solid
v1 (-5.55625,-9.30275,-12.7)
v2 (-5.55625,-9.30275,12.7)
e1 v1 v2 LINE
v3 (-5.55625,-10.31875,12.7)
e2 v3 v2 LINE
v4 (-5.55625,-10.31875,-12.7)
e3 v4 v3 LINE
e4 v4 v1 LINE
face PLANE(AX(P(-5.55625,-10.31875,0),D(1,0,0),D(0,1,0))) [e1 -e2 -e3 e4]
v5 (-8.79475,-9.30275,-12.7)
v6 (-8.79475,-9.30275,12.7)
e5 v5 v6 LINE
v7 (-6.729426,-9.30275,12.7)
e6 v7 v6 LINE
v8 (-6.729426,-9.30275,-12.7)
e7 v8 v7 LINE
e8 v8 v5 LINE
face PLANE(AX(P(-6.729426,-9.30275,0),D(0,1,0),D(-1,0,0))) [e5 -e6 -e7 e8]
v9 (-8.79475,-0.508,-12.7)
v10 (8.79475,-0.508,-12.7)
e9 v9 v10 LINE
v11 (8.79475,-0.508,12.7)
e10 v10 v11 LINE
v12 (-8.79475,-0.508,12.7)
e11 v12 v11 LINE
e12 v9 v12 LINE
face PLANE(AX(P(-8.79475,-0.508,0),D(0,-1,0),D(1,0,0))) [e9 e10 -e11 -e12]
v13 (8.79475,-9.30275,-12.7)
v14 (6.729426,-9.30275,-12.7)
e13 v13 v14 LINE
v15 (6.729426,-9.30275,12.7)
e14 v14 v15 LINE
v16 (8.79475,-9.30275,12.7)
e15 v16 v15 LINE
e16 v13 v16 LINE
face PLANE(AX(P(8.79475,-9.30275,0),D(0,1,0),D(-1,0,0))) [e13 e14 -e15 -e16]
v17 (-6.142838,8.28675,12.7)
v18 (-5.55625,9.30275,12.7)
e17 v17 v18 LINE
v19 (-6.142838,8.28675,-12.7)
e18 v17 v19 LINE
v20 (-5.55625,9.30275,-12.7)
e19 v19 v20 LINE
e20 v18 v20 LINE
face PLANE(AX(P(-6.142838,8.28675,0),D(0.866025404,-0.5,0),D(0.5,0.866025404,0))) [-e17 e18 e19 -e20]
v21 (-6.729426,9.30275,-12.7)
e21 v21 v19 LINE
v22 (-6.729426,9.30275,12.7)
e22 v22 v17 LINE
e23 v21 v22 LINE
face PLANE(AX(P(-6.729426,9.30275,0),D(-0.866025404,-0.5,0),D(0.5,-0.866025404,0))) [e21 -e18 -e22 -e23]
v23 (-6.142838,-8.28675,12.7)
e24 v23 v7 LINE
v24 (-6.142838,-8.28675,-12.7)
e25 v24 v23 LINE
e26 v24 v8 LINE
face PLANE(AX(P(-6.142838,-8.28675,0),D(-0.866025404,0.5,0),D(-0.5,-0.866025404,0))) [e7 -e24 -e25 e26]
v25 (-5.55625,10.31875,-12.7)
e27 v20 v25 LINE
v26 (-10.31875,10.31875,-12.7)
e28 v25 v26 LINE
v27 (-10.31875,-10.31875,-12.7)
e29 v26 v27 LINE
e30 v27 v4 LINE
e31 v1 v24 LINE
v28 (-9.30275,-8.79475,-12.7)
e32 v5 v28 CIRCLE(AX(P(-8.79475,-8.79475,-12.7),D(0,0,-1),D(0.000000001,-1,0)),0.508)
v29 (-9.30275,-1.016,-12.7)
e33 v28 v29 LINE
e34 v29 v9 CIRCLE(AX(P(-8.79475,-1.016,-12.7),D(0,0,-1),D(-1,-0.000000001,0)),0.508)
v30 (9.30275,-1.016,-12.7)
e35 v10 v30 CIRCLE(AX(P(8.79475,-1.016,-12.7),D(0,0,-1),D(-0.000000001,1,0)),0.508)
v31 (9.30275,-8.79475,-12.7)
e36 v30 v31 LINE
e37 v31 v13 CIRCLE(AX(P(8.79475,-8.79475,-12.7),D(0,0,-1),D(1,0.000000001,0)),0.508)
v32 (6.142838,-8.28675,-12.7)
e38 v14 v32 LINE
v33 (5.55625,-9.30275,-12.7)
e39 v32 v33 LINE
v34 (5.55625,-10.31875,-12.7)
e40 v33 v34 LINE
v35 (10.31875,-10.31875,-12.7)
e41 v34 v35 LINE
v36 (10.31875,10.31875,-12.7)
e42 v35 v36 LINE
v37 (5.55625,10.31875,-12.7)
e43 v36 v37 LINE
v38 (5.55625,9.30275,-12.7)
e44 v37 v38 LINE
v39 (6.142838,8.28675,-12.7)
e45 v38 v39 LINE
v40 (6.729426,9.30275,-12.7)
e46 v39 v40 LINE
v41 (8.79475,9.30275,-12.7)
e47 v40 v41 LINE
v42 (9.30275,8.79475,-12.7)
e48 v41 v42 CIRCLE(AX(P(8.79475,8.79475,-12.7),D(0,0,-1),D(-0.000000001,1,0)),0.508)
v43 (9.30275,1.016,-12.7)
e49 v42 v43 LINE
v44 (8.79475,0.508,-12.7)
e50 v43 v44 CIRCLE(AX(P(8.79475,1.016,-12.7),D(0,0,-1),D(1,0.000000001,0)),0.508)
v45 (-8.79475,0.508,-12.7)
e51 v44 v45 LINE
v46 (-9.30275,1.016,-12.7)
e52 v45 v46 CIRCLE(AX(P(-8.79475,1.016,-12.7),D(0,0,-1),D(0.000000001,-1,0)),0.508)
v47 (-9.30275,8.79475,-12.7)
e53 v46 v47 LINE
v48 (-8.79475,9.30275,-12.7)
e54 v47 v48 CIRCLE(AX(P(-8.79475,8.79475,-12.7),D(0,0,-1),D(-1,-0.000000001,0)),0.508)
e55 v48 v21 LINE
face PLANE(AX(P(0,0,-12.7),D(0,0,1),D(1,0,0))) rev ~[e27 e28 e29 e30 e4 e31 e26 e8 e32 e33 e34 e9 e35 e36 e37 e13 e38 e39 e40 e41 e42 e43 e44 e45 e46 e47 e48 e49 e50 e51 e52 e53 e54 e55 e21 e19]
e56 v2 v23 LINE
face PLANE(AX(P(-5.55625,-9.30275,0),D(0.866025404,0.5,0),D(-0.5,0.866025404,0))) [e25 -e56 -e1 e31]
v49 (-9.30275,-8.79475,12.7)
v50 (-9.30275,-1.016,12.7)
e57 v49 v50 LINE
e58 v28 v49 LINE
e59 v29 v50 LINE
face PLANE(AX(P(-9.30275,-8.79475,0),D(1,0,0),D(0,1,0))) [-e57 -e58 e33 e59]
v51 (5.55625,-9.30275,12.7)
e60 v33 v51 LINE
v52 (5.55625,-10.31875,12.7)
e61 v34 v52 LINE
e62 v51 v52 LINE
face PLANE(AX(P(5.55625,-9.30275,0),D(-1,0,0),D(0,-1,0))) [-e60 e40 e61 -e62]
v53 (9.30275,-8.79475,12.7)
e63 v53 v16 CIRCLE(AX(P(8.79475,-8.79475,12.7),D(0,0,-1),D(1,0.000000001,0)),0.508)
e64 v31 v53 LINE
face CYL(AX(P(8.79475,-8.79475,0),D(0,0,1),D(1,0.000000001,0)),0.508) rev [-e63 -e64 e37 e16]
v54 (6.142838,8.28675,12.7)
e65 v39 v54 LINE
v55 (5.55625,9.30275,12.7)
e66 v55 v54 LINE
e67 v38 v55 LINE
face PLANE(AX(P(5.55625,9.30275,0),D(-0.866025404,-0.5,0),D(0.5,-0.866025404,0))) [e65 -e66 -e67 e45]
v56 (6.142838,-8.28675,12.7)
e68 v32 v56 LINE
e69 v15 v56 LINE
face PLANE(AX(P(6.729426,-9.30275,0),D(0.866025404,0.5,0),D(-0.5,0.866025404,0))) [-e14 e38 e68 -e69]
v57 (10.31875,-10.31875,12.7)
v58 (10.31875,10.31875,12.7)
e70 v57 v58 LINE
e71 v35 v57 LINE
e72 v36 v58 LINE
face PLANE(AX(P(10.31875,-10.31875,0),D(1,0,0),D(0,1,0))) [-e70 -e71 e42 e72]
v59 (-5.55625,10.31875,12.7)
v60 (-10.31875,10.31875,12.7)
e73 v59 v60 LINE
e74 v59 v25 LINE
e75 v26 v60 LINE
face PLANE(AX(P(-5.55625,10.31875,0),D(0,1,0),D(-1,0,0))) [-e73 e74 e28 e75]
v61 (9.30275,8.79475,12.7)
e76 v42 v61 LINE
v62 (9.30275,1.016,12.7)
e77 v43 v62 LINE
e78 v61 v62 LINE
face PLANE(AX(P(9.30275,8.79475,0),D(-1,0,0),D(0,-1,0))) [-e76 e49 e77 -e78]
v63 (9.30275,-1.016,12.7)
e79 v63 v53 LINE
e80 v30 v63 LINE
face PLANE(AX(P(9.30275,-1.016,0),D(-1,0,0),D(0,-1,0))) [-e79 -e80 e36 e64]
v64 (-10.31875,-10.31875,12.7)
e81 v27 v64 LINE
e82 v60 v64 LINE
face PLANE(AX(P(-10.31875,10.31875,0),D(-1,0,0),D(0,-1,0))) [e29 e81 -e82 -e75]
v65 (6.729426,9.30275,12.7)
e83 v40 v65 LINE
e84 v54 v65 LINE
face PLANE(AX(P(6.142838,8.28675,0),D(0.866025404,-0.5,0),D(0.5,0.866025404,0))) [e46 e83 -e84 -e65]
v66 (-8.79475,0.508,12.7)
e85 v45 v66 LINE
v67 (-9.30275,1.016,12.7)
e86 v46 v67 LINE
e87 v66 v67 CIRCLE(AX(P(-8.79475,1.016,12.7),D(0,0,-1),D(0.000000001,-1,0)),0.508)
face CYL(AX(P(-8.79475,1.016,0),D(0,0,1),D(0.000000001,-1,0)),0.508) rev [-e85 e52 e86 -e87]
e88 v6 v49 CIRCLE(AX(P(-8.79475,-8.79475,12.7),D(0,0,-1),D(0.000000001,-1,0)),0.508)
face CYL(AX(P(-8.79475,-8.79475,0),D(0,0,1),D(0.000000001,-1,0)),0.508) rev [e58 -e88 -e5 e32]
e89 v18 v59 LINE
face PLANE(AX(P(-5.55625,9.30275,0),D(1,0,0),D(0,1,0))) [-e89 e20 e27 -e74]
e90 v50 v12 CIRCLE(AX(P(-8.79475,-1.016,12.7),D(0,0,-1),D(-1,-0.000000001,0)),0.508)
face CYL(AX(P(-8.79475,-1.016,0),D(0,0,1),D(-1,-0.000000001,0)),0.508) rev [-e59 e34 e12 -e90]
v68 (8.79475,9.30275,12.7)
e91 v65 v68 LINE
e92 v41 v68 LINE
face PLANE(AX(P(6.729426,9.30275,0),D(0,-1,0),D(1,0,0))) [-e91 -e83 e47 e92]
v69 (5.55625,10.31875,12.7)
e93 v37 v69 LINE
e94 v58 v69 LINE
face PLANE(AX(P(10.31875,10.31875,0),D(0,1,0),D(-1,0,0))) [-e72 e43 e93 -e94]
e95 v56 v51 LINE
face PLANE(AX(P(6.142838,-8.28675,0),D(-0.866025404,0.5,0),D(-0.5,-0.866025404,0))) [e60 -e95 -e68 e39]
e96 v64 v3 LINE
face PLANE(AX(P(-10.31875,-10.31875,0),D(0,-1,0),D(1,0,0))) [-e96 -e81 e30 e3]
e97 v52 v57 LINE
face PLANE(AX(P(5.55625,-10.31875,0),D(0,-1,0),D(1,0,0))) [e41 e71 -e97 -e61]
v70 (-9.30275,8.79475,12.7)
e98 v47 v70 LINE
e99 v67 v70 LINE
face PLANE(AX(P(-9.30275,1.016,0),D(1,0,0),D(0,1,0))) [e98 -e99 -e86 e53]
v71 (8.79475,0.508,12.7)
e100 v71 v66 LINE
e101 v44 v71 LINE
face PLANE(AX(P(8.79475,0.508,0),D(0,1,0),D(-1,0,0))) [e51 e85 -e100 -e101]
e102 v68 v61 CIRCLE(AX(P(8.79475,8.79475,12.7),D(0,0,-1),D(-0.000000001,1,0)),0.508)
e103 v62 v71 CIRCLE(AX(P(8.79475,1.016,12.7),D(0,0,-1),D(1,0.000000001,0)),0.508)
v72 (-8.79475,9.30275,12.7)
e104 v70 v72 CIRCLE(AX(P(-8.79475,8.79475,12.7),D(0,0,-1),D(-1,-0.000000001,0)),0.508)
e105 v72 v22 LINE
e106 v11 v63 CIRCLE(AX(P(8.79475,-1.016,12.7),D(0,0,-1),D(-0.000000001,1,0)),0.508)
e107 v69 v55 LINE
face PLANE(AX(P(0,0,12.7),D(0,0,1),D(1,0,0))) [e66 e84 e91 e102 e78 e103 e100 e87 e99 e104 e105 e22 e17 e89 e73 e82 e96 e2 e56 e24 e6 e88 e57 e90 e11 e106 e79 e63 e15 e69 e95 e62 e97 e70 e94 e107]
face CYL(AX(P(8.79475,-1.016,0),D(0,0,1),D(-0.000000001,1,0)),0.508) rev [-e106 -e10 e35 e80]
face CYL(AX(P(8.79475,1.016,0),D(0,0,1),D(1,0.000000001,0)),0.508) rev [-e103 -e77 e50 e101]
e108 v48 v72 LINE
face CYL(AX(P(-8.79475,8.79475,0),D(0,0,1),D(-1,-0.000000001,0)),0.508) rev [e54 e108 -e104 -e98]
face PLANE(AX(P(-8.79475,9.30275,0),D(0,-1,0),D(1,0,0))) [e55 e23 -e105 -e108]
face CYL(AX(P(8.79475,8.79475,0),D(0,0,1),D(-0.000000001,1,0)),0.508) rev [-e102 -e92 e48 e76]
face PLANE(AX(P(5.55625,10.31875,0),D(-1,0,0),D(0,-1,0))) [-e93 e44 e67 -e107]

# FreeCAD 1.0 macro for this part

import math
import FreeCAD as App
import Part
import Sketcher

V = App.Vector
Q = App.Units.Quantity

doc = App.newDocument("Part")
params = doc.addObject("Spreadsheet::Sheet", "Params")
for row, (alias, value) in enumerate([
    ("sketch1_radius", "0.02 in"),
    ("sketch1_height", "0.04 in"),
    ("sketch1_width", "0.1875 in"),
    ("sketch1_height2", "0.8125 in"),
    ("pad1_length", "1 in"),
], start=1):
    params.set(f"A{row}", alias)
    params.set(f"B{row}", "=" + value)
    params.setAlias(f"B{row}", alias)

body = doc.addObject("PartDesign::Body", "Body")

# Sketch on XY plane
sketch1 = doc.addObject("Sketcher::SketchObject", "Sketch")
body.addObject(sketch1)
sketch1.AttachmentSupport = (doc.XY_Plane, [""])
sketch1.MapMode = "FlatFace"
sketch1.addGeometry([
    Part.LineSegment(V(-5.6, 10.3, 0), V(-10.3, 10.3, 0)),  # 0
    Part.LineSegment(V(-10.3, 10.3, 0), V(-10.3, -10.3, 0)),  # 1
    Part.LineSegment(V(-10.3, -10.3, 0), V(-5.6, -10.3, 0)),  # 2
    Part.LineSegment(V(-5.6, -10.3, 0), V(-5.6, -9.3, 0)),  # 3
    Part.LineSegment(V(-5.6, -9.3, 0), V(-6.1, -8.3, 0)),  # 4
    Part.LineSegment(V(-6.1, -8.3, 0), V(-6.7, -9.3, 0)),  # 5
    Part.LineSegment(V(-6.7, -9.3, 0), V(-8.8, -9.3, 0)),  # 6
    Part.ArcOfCircle(Part.Circle(V(-8.8, -8.8, 0), V(0, 0, 1), 0.5), math.radians(180), math.radians(270)),  # 7
    Part.LineSegment(V(-9.3, -8.8, 0), V(-9.3, -1, 0)),  # 8
    Part.ArcOfCircle(Part.Circle(V(-8.8, -1, 0), V(0, 0, 1), 0.5), math.radians(90), math.radians(180)),  # 9
    Part.LineSegment(V(-8.8, -0.5, 0), V(8.8, -0.5, 0)),  # 10
    Part.ArcOfCircle(Part.Circle(V(8.8, -1, 0), V(0, 0, 1), 0.5), math.radians(0), math.radians(90)),  # 11
    Part.LineSegment(V(9.3, -1, 0), V(9.3, -8.8, 0)),  # 12
    Part.ArcOfCircle(Part.Circle(V(8.8, -8.8, 0), V(0, 0, 1), 0.5), math.radians(-90), math.radians(0)),  # 13
    Part.LineSegment(V(8.8, -9.3, 0), V(6.7, -9.3, 0)),  # 14
    Part.LineSegment(V(6.7, -9.3, 0), V(6.1, -8.3, 0)),  # 15
    Part.LineSegment(V(6.1, -8.3, 0), V(5.6, -9.3, 0)),  # 16
    Part.LineSegment(V(5.6, -9.3, 0), V(5.6, -10.3, 0)),  # 17
    Part.LineSegment(V(5.6, -10.3, 0), V(10.3, -10.3, 0)),  # 18
    Part.LineSegment(V(10.3, -10.3, 0), V(10.3, 10.3, 0)),  # 19
    Part.LineSegment(V(10.3, 10.3, 0), V(5.6, 10.3, 0)),  # 20
    Part.LineSegment(V(5.6, 10.3, 0), V(5.6, 9.3, 0)),  # 21
    Part.LineSegment(V(5.6, 9.3, 0), V(6.1, 8.3, 0)),  # 22
    Part.LineSegment(V(6.1, 8.3, 0), V(6.7, 9.3, 0)),  # 23
    Part.LineSegment(V(6.7, 9.3, 0), V(8.8, 9.3, 0)),  # 24
    Part.ArcOfCircle(Part.Circle(V(8.8, 8.8, 0), V(0, 0, 1), 0.5), math.radians(0), math.radians(90)),  # 25
    Part.LineSegment(V(9.3, 8.8, 0), V(9.3, 1, 0)),  # 26
    Part.ArcOfCircle(Part.Circle(V(8.8, 1, 0), V(0, 0, 1), 0.5), math.radians(-90), math.radians(0)),  # 27
    Part.LineSegment(V(8.8, 0.5, 0), V(-8.8, 0.5, 0)),  # 28
    Part.ArcOfCircle(Part.Circle(V(-8.8, 1, 0), V(0, 0, 1), 0.5), math.radians(180), math.radians(270)),  # 29
    Part.LineSegment(V(-9.3, 1, 0), V(-9.3, 8.8, 0)),  # 30
    Part.ArcOfCircle(Part.Circle(V(-8.8, 8.8, 0), V(0, 0, 1), 0.5), math.radians(90), math.radians(180)),  # 31
    Part.LineSegment(V(-8.8, 9.3, 0), V(-6.7, 9.3, 0)),  # 32
    Part.LineSegment(V(-6.7, 9.3, 0), V(-6.1, 8.3, 0)),  # 33
    Part.LineSegment(V(-6.1, 8.3, 0), V(-5.6, 9.3, 0)),  # 34
    Part.LineSegment(V(-5.6, 9.3, 0), V(-5.6, 10.3, 0)),  # 35
], False)
sketch1.addConstraint([
    Sketcher.Constraint("Coincident", 0, 2, 1, 1),
    Sketcher.Constraint("Coincident", 1, 2, 2, 1),
    Sketcher.Constraint("Coincident", 2, 2, 3, 1),
    Sketcher.Constraint("Coincident", 3, 2, 4, 1),
    Sketcher.Constraint("Coincident", 4, 2, 5, 1),
    Sketcher.Constraint("Coincident", 5, 2, 6, 1),
    Sketcher.Constraint("Tangent", 6, 2, 7, 2),
    Sketcher.Constraint("Tangent", 7, 1, 8, 1),
    Sketcher.Constraint("Tangent", 8, 2, 9, 2),
    Sketcher.Constraint("Tangent", 9, 1, 10, 1),
    Sketcher.Constraint("Tangent", 10, 2, 11, 2),
    Sketcher.Constraint("Tangent", 11, 1, 12, 1),
    Sketcher.Constraint("Tangent", 12, 2, 13, 2),
    Sketcher.Constraint("Tangent", 13, 1, 14, 1),
    Sketcher.Constraint("Coincident", 14, 2, 15, 1),
    Sketcher.Constraint("Coincident", 15, 2, 16, 1),
    Sketcher.Constraint("Coincident", 16, 2, 17, 1),
    Sketcher.Constraint("Coincident", 17, 2, 18, 1),
    Sketcher.Constraint("Coincident", 18, 2, 19, 1),
    Sketcher.Constraint("Coincident", 19, 2, 20, 1),
    Sketcher.Constraint("Coincident", 20, 2, 21, 1),
    Sketcher.Constraint("Coincident", 21, 2, 22, 1),
    Sketcher.Constraint("Coincident", 22, 2, 23, 1),
    Sketcher.Constraint("Coincident", 23, 2, 24, 1),
    Sketcher.Constraint("Tangent", 24, 2, 25, 2),
    Sketcher.Constraint("Tangent", 25, 1, 26, 1),
    Sketcher.Constraint("Tangent", 26, 2, 27, 2),
    Sketcher.Constraint("Tangent", 27, 1, 28, 1),
    Sketcher.Constraint("Tangent", 28, 2, 29, 2),
    Sketcher.Constraint("Tangent", 29, 1, 30, 1),
    Sketcher.Constraint("Tangent", 30, 2, 31, 2),
    Sketcher.Constraint("Tangent", 31, 1, 32, 1),
    Sketcher.Constraint("Coincident", 32, 2, 33, 1),
    Sketcher.Constraint("Coincident", 33, 2, 34, 1),
    Sketcher.Constraint("Coincident", 34, 2, 35, 1),
    Sketcher.Constraint("Coincident", 35, 2, 0, 1),
    Sketcher.Constraint("Horizontal", 0),
    Sketcher.Constraint("Vertical", 1),
    Sketcher.Constraint("Horizontal", 2),
    Sketcher.Constraint("Vertical", 3),
    Sketcher.Constraint("Horizontal", 6),
    Sketcher.Constraint("Vertical", 8),
    Sketcher.Constraint("Horizontal", 10),
    Sketcher.Constraint("Vertical", 12),
    Sketcher.Constraint("Horizontal", 14),
    Sketcher.Constraint("Vertical", 17),
    Sketcher.Constraint("Horizontal", 18),
    Sketcher.Constraint("Vertical", 19),
    Sketcher.Constraint("Horizontal", 20),
    Sketcher.Constraint("Vertical", 21),
    Sketcher.Constraint("Horizontal", 24),
    Sketcher.Constraint("Vertical", 26),
    Sketcher.Constraint("Horizontal", 28),
    Sketcher.Constraint("Vertical", 30),
    Sketcher.Constraint("Horizontal", 32),
    Sketcher.Constraint("Vertical", 35),
    Sketcher.Constraint("Equal", 7, 9),
    Sketcher.Constraint("Equal", 9, 11),
    Sketcher.Constraint("Equal", 11, 13),
    Sketcher.Constraint("Equal", 13, 25),
    Sketcher.Constraint("Equal", 25, 27),
    Sketcher.Constraint("Equal", 27, 29),
    Sketcher.Constraint("Equal", 29, 31),
    Sketcher.Constraint("Symmetric", 7, 3, 25, 3, -1, 1),
    Sketcher.Constraint("Symmetric", 11, 3, 29, 3, -1, 1),
    Sketcher.Constraint("Symmetric", 0, 2, 18, 2, -1, 1),
    Sketcher.Constraint("Symmetric", 2, 2, 20, 2, -1, 1),
    Sketcher.Constraint("Symmetric", 4, 2, 22, 2, -1, 1),
    Sketcher.Constraint("Symmetric", 14, 2, 32, 2, -1, 1),
    Sketcher.Constraint("Symmetric", 15, 2, 33, 2, -1, 1),
    Sketcher.Constraint("Symmetric", 16, 2, 34, 2, -1, 1),
    Sketcher.Constraint("Symmetric", 7, 3, 13, 3, -2),
    Sketcher.Constraint("Symmetric", 4, 2, 15, 2, -2),
    Sketcher.Constraint("Symmetric", 3, 2, 16, 2, -2),
    Sketcher.Constraint("Parallel", 4, 15),
    Sketcher.Constraint("Parallel", 5, 16),
    Sketcher.Constraint("Parallel", 15, 22),
    Sketcher.Constraint("Parallel", 16, 23),
    Sketcher.Constraint("Horizontal", 3, 2, 5, 2),
    Sketcher.Constraint("Horizontal", 2, 2, 17, 2),
    Sketcher.Constraint("Radius", 7, Q("0.02 in")),
    Sketcher.Constraint("Angle", 4, Q("120 deg")),
    Sketcher.Constraint("DistanceY", 3, 1, 3, 2, Q("0.04 in")),
    Sketcher.Constraint("DistanceX", 0, 2, 0, 1, Q("0.1875 in")),
    Sketcher.Constraint("DistanceY", 1, 2, 1, 1, Q("0.8125 in")),
    Sketcher.Constraint("DistanceY", 9, 3, -1, 1, Q("0.04 in")),
    Sketcher.Constraint("DistanceX", 0, 2, 31, 3, Q("0.06 in")),
    Sketcher.Constraint("DistanceY", 3, 2, 4, 2, Q("0.04 in")),
    Sketcher.Constraint("DistanceX", 10, 1, 10, 2, Q("0.6925 in")),
])
sketch1.setExpression("Constraints[80]", "Params.sketch1_radius")
sketch1.setExpression("Constraints[82]", "Params.sketch1_height")
sketch1.setExpression("Constraints[83]", "Params.sketch1_width")
sketch1.setExpression("Constraints[84]", "Params.sketch1_height2")
pad1 = doc.addObject("PartDesign::Pad", "Pad")
body.addObject(pad1)
pad1.Profile = sketch1
pad1.setExpression("Length", "Params.pad1_length")
pad1.Midplane = True

doc.recompute()
